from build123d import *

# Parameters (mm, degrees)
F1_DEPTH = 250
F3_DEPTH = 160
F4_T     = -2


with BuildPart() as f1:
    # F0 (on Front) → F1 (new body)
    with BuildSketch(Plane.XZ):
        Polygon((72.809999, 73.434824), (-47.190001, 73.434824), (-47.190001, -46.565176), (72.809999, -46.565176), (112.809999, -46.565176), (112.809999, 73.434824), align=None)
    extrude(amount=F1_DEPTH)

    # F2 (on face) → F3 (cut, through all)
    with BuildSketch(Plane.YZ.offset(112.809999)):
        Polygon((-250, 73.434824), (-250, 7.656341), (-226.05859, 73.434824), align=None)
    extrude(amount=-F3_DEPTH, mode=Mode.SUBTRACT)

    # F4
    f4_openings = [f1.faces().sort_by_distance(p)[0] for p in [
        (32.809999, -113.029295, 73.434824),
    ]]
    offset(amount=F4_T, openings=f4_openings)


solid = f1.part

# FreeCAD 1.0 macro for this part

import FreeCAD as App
import Part
import Sketcher
Q = App.Units.Quantity


def faces_at(feature, points):
    """Names of the faces that lie closest to the given points."""
    faces = feature.Shape.Faces
    near = lambda p: min(range(len(faces)), key=lambda i: faces[i].distToShape(Part.Vertex(*p))[0])
    return sorted({f"Face{near(p) + 1}" for p in points})


def add_polygon(sketch, points):
    """Adds a closed chain of lines whose ends are joined by coincident constraints."""
    first, n = sketch.GeometryCount, len(points)
    for a, b in zip(points, points[1:] + points[:1]):
        sketch.addGeometry(Part.LineSegment(App.Vector(*a, 0), App.Vector(*b, 0)), False)
    for i in range(n):
        sketch.addConstraint(Sketcher.Constraint("Coincident", first + i, 2, first + (i + 1) % n, 1))

doc = App.newDocument("Part")
body = doc.addObject("PartDesign::Body", "Body")

# Sketch on XZ plane
sketch1 = body.newObject("Sketcher::SketchObject", "Sketch")
sketch1.AttachmentSupport = (doc.getObject("XZ_Plane"), [""])
sketch1.MapMode = "FlatFace"
add_polygon(sketch1, [(-47, 73), (-47, -47), (113, -47), (113, 73)])  # lines 0-3
sketch1.addConstraint([
    Sketcher.Constraint("Vertical", 0),
    Sketcher.Constraint("Horizontal", 1),
    Sketcher.Constraint("Vertical", 2),
    Sketcher.Constraint("Horizontal", 3),
    Sketcher.Constraint("DistanceX", 1, 1, 1, 2, Q("160 mm")),
    Sketcher.Constraint("DistanceY", 0, 2, 0, 1, Q("120 mm")),
    Sketcher.Constraint("DistanceX", 0, 2, -1, 1, Q("47.190001 mm")),
    Sketcher.Constraint("DistanceY", 0, 2, -1, 1, Q("46.565176 mm")),
])
pad1 = body.newObject("PartDesign::Pad", "Pad")
pad1.Profile = sketch1
pad1.Length = 250

# Sketch on YZ plane
sketch2 = body.newObject("Sketcher::SketchObject", "Sketch001")
sketch2.AttachmentSupport = (doc.getObject("YZ_Plane"), [""])
sketch2.MapMode = "FlatFace"
sketch2.AttachmentOffset = App.Placement(App.Vector(0, 0, 112.809999), App.Rotation())
add_polygon(sketch2, [(-250, 73), (-250, 8), (-226, 73)])  # lines 0-2
sketch2.addConstraint([
    Sketcher.Constraint("Vertical", 0),
    Sketcher.Constraint("Horizontal", 2),
    Sketcher.Constraint("Angle", 1, Q("70 deg")),
    Sketcher.Constraint("Distance", 1, Q("70 mm")),
    Sketcher.Constraint("DistanceX", 0, 2, -1, 1, Q("250 mm")),
    Sketcher.Constraint("DistanceY", -1, 1, 0, 2, Q("7.656341 mm")),
])
pocket1 = body.newObject("PartDesign::Pocket", "Pocket")
pocket1.Profile = sketch2
pocket1.Type = "ThroughAll"
doc.recompute()

thickness = body.newObject("PartDesign::Thickness", "Thickness")
thickness.Base = (pocket1, faces_at(pocket1, [(32.81, -113.029, 73.435)]))
thickness.Value = 2
thickness.Reversed = True
thickness.Join = "Arc"

doc.recompute()
